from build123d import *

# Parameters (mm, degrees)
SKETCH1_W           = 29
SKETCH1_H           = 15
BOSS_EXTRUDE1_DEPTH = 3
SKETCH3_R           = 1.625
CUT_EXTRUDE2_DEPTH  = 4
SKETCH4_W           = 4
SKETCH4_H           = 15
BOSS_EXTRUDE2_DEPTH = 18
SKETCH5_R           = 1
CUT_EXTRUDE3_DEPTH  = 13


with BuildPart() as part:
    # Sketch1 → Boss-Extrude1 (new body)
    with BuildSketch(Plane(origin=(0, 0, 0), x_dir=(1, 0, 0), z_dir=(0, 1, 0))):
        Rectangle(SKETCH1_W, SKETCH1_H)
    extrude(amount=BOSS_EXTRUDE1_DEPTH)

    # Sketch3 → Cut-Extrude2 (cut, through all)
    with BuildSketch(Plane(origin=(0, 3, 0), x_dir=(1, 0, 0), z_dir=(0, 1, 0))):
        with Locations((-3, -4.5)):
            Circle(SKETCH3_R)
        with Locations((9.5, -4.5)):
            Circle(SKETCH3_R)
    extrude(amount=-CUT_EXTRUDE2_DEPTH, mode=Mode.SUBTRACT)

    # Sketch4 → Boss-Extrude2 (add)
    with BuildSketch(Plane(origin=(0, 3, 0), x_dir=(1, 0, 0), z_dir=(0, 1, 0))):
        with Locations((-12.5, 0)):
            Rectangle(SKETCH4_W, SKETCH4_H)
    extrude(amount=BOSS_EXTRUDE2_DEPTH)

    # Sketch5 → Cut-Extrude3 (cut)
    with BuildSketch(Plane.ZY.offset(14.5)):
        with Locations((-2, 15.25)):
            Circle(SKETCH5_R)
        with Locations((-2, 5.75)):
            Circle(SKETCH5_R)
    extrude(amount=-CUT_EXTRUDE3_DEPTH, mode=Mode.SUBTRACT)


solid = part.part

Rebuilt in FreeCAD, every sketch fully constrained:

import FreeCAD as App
import Part
import Sketcher
from FreeCAD import Vector

doc = App.newDocument("Part")
body = doc.addObject("PartDesign::Body", "Body")

sketch1 = body.newObject("Sketcher::SketchObject", "Sketch")
sketch1.AttachmentSupport = (doc.getObject("XZ_Plane"), [""])
sketch1.MapMode = "FlatFace"
sketch1.addGeometry([
    Part.LineSegment(Vector(-14, -8, 0), Vector(-14, 8, 0)),
    Part.LineSegment(Vector(-14, 8, 0), Vector(14, 8, 0)),
    Part.LineSegment(Vector(14, 8, 0), Vector(14, -8, 0)),
    Part.LineSegment(Vector(14, -8, 0), Vector(-14, -8, 0)),
], False)
sketch1.addConstraint([
    Sketcher.Constraint("Coincident", 0, 2, 1, 1),
    Sketcher.Constraint("Coincident", 1, 2, 2, 1),
    Sketcher.Constraint("Coincident", 2, 2, 3, 1),
    Sketcher.Constraint("Coincident", 3, 2, 0, 1),
    Sketcher.Constraint("Vertical", 0),
    Sketcher.Constraint("Horizontal", 1),
    Sketcher.Constraint("Vertical", 2),
    Sketcher.Constraint("Horizontal", 3),
    Sketcher.Constraint("Symmetric", 0, 2, 2, 2, -1, 1),
    Sketcher.Constraint("DistanceX", 1, 1, 1, 2, 29.0),
    Sketcher.Constraint("DistanceY", 0, 1, 0, 2, 15.0),
])
pad1 = body.newObject("PartDesign::Pad", "Pad")
pad1.Profile = sketch1
pad1.Length = 3
pad1.Reversed = True

sketch2 = body.newObject("Sketcher::SketchObject", "Sketch001")
sketch2.AttachmentSupport = (doc.getObject("XZ_Plane"), [""])
sketch2.MapMode = "FlatFace"
sketch2.AttachmentOffset = App.Placement(Vector(0, 0, -3), App.Rotation())
sketch2.addGeometry([
    Part.Circle(Vector(-3, 4.5, 0), Vector(0, 0, 1), 1.6),
    Part.Circle(Vector(9.5, 4.5, 0), Vector(0, 0, 1), 1.6),
], False)
sketch2.addConstraint([
    Sketcher.Constraint("Equal", 0, 1),
    Sketcher.Constraint("Horizontal", 0, 3, 1, 3),
    Sketcher.Constraint("Diameter", 0, 3.25),
    Sketcher.Constraint("DistanceX", 0, 3, -1, 1, 3.0),
    Sketcher.Constraint("DistanceY", -1, 1, 0, 3, 4.5),
    Sketcher.Constraint("DistanceX", -1, 1, 1, 3, 9.5),
])
pocket1 = body.newObject("PartDesign::Pocket", "Pocket")
pocket1.Profile = sketch2
pocket1.Type = "ThroughAll"
pocket1.Reversed = True

sketch3 = body.newObject("Sketcher::SketchObject", "Sketch002")
sketch3.AttachmentSupport = (doc.getObject("XZ_Plane"), [""])
sketch3.MapMode = "FlatFace"
sketch3.AttachmentOffset = App.Placement(Vector(0, 0, -3), App.Rotation())
sketch3.addGeometry([
    Part.LineSegment(Vector(-14.5, -7.5, 0), Vector(-14.5, 7.5, 0)),
    Part.LineSegment(Vector(-14.5, 7.5, 0), Vector(-10.5, 7.5, 0)),
    Part.LineSegment(Vector(-10.5, 7.5, 0), Vector(-10.5, -7.5, 0)),
    Part.LineSegment(Vector(-10.5, -7.5, 0), Vector(-14.5, -7.5, 0)),
], False)
sketch3.addConstraint([
    Sketcher.Constraint("Coincident", 0, 2, 1, 1),
    Sketcher.Constraint("Coincident", 1, 2, 2, 1),
    Sketcher.Constraint("Coincident", 2, 2, 3, 1),
    Sketcher.Constraint("Coincident", 3, 2, 0, 1),
    Sketcher.Constraint("Vertical", 0),
    Sketcher.Constraint("Horizontal", 1),
    Sketcher.Constraint("Vertical", 2),
    Sketcher.Constraint("Horizontal", 3),
    Sketcher.Constraint("DistanceX", 1, 1, 1, 2, 4.0),
    Sketcher.Constraint("DistanceY", 0, 1, 0, 2, 15.0),
    Sketcher.Constraint("DistanceX", 0, 2, -1, 1, 14.5),
    Sketcher.Constraint("DistanceY", -1, 1, 0, 2, 7.5),
])
pad2 = body.newObject("PartDesign::Pad", "Pad001")
pad2.Profile = sketch3
pad2.Length = 18
pad2.Reversed = True

sketch4 = body.newObject("Sketcher::SketchObject", "Sketch003")
sketch4.AttachmentSupport = (doc.getObject("YZ_Plane"), [""])
sketch4.MapMode = "FlatFace"
sketch4.AttachmentOffset = App.Placement(Vector(0, 0, -14.5), App.Rotation())
sketch4.addGeometry([
    Part.Circle(Vector(15.2, -2, 0), Vector(0, 0, 1), 1),
    Part.Circle(Vector(5.8, -2, 0), Vector(0, 0, 1), 1),
], False)
sketch4.addConstraint([
    Sketcher.Constraint("Equal", 0, 1),
    Sketcher.Constraint("Horizontal", 0, 3, 1, 3),
    Sketcher.Constraint("Diameter", 0, 2.0),
    Sketcher.Constraint("DistanceY", 0, 3, -1, 1, 2.0),
    Sketcher.Constraint("DistanceX", 1, 3, 0, 3, 9.5),
    Sketcher.Constraint("DistanceX", -1, 1, 0, 3, 15.25),
])
pocket2 = body.newObject("PartDesign::Pocket", "Pocket001")
pocket2.Profile = sketch4
pocket2.Length = 13
pocket2.Reversed = True

doc.recompute()
